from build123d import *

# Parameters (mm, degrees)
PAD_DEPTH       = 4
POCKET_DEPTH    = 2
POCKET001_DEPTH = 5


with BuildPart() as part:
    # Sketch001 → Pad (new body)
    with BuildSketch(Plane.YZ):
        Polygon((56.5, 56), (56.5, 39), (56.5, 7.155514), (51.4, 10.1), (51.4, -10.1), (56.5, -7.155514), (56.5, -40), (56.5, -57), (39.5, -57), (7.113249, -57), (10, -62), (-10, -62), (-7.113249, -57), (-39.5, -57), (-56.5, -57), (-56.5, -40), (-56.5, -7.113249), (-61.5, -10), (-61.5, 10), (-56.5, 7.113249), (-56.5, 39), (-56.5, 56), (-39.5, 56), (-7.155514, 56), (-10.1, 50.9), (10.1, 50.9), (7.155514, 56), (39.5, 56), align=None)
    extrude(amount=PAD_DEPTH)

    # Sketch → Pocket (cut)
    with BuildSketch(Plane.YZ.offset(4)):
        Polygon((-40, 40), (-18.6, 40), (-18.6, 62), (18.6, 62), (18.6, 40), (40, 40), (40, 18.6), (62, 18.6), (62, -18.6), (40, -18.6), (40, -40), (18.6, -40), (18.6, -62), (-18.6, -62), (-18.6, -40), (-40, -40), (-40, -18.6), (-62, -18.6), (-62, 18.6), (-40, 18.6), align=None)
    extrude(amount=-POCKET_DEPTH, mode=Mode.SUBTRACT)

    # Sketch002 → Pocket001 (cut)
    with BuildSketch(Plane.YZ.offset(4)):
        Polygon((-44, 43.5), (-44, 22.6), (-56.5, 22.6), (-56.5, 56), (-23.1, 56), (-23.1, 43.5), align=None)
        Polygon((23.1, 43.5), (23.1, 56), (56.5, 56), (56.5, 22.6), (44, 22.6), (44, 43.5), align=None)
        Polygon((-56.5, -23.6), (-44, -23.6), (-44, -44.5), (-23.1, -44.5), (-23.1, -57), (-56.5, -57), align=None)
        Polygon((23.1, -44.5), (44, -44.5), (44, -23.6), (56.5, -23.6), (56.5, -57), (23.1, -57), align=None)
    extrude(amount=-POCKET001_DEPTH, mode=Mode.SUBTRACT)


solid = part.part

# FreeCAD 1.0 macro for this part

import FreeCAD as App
import Part
import Sketcher
from FreeCAD import Vector
Q = App.Units.Quantity


def add_polygon(sketch, points):
    """Adds a closed chain of lines whose ends are joined by coincident constraints."""
    first, n = sketch.GeometryCount, len(points)
    for a, b in zip(points, points[1:] + points[:1]):
        sketch.addGeometry(Part.LineSegment(App.Vector(*a, 0), App.Vector(*b, 0)), False)
    for i in range(n):
        sketch.addConstraint(Sketcher.Constraint("Coincident", first + i, 2, first + (i + 1) % n, 1))

doc = App.newDocument("Part")
params = doc.addObject("Spreadsheet::Sheet", "Params")
for row, (alias, value) in enumerate([
    ("sketch1_width", "20 mm"),
    ("sketch1_width2", "20.2 mm"),
    ("pad1_length", "4 mm"),
    ("sketch2_width", "22 mm"),
    ("sketch2_width2", "21.4 mm"),
    ("sketch2_width3", "37.2 mm"),
    ("pocket1_length", "2 mm"),
    ("sketch3_width", "20.9 mm"),
    ("sketch3_width2", "33.4 mm"),
    ("pocket2_length", "5 mm"),
], start=1):
    params.set(f"A{row}", alias)
    params.set(f"B{row}", "=" + value)
    params.setAlias(f"B{row}", alias)

body = doc.addObject("PartDesign::Body", "Body")

sketch1 = body.newObject("Sketcher::SketchObject", "Sketch")
sketch1.AttachmentSupport = (doc.getObject("YZ_Plane"), [""])
sketch1.MapMode = "FlatFace"
add_polygon(sketch1, [(56, 7), (56, 56), (7, 56), (10, 51), (-10, 51), (-7, 56), (-56, 56), (-56, 7), (-62, 10), (-62, -10), (-56, -7), (-56, -57), (-7, -57), (-10, -62), (10, -62), (7, -57), (56, -57), (56, -7), (51, -10), (51, 10)])
sketch1.addConstraint(Sketcher.Constraint("Vertical", 0))
sketch1.addConstraint(Sketcher.Constraint("Horizontal", 1))
sketch1.addConstraint(Sketcher.Constraint("Horizontal", 3))
sketch1.addConstraint(Sketcher.Constraint("Horizontal", 5))
sketch1.addConstraint(Sketcher.Constraint("Vertical", 6))
sketch1.addConstraint(Sketcher.Constraint("Vertical", 8))
sketch1.addConstraint(Sketcher.Constraint("Vertical", 10))
sketch1.addConstraint(Sketcher.Constraint("Horizontal", 11))
sketch1.addConstraint(Sketcher.Constraint("Horizontal", 13))
sketch1.addConstraint(Sketcher.Constraint("Horizontal", 15))
sketch1.addConstraint(Sketcher.Constraint("Vertical", 16))
sketch1.addConstraint(Sketcher.Constraint("Vertical", 18))
sketch1.addConstraint(Sketcher.Constraint("Symmetric", 1, 2, 4, 2, -2))
sketch1.addConstraint(Sketcher.Constraint("Symmetric", 11, 2, 14, 2, -2))
sketch1.addConstraint(Sketcher.Constraint("Symmetric", 6, 2, 9, 2, -1))
sketch1.addConstraint(Sketcher.Constraint("Symmetric", 16, 2, 19, 2, -1))
sketch1.addConstraint(Sketcher.Constraint("Perpendicular", 4, 7))
sketch1.addConstraint(Sketcher.Constraint("Perpendicular", 2, 9))
sketch1.addConstraint(Sketcher.Constraint("Perpendicular", 7, 12))
sketch1.addConstraint(Sketcher.Constraint("Perpendicular", 9, 14))
sketch1.addConstraint(Sketcher.Constraint("Perpendicular", 14, 17))
sketch1.addConstraint(Sketcher.Constraint("Perpendicular", 12, 19))
sketch1.addConstraint(Sketcher.Constraint("Equal", 1, 5))
sketch1.addConstraint(Sketcher.Constraint("Equal", 13, 8))
sketch1.addConstraint(Sketcher.Constraint("Equal", 3, 18))
sketch1.addConstraint(Sketcher.Constraint("Equal", 2, 4))
sketch1.addConstraint(Sketcher.Constraint("Equal", 9, 12))
sketch1.addConstraint(Sketcher.Constraint("Equal", 4, 17))
sketch1.addConstraint(Sketcher.Constraint("DistanceX", 13, 1, 13, 2, 20.0))
sketch1.addConstraint(Sketcher.Constraint("Angle", 2, Q("-60.000003 deg")))
sketch1.addConstraint(Sketcher.Constraint("DistanceX", 3, 2, 3, 1, 20.2))
sketch1.addConstraint(Sketcher.Constraint("DistanceY", -1, 1, 0, 2, 56.0))
sketch1.addConstraint(Sketcher.Constraint("DistanceY", 10, 2, -1, 1, 57.0))
sketch1.addConstraint(Sketcher.Constraint("DistanceY", 12, 2, -1, 1, 62.0))
sketch1.addConstraint(Sketcher.Constraint("DistanceX", 5, 2, 0, 2, 113.0))
sketch1.addConstraint(Sketcher.Constraint("DistanceY", -1, 1, 2, 2, 50.9))
sketch1.setExpression("Constraints[48]", "Params.sketch1_width")
sketch1.setExpression("Constraints[50]", "Params.sketch1_width2")
pad1 = body.newObject("PartDesign::Pad", "Pad")
pad1.Profile = sketch1
pad1.setExpression("Length", "Params.pad1_length")

sketch2 = body.newObject("Sketcher::SketchObject", "Sketch001")
sketch2.AttachmentSupport = (doc.getObject("YZ_Plane"), [""])
sketch2.MapMode = "FlatFace"
sketch2.AttachmentOffset = App.Placement(Vector(0, 0, 4), App.Rotation())
add_polygon(sketch2, [(-19, 40), (-40, 40), (-40, 19), (-62, 19), (-62, -19), (-40, -19), (-40, -40), (-19, -40), (-19, -62), (19, -62), (19, -40), (40, -40), (40, -19), (62, -19), (62, 19), (40, 19), (40, 40), (19, 40), (19, 62), (-19, 62)])
sketch2.addConstraint(Sketcher.Constraint("Horizontal", 0))
sketch2.addConstraint(Sketcher.Constraint("Vertical", 1))
sketch2.addConstraint(Sketcher.Constraint("Horizontal", 2))
sketch2.addConstraint(Sketcher.Constraint("Vertical", 3))
sketch2.addConstraint(Sketcher.Constraint("Horizontal", 4))
sketch2.addConstraint(Sketcher.Constraint("Vertical", 5))
sketch2.addConstraint(Sketcher.Constraint("Horizontal", 6))
sketch2.addConstraint(Sketcher.Constraint("Vertical", 7))
sketch2.addConstraint(Sketcher.Constraint("Horizontal", 8))
sketch2.addConstraint(Sketcher.Constraint("Vertical", 9))
sketch2.addConstraint(Sketcher.Constraint("Horizontal", 10))
sketch2.addConstraint(Sketcher.Constraint("Vertical", 11))
sketch2.addConstraint(Sketcher.Constraint("Horizontal", 12))
sketch2.addConstraint(Sketcher.Constraint("Vertical", 13))
sketch2.addConstraint(Sketcher.Constraint("Horizontal", 14))
sketch2.addConstraint(Sketcher.Constraint("Vertical", 15))
sketch2.addConstraint(Sketcher.Constraint("Horizontal", 16))
sketch2.addConstraint(Sketcher.Constraint("Vertical", 17))
sketch2.addConstraint(Sketcher.Constraint("Horizontal", 18))
sketch2.addConstraint(Sketcher.Constraint("Vertical", 19))
sketch2.addConstraint(Sketcher.Constraint("Symmetric", 0, 2, 10, 2, -1, 1))
sketch2.addConstraint(Sketcher.Constraint("Symmetric", 2, 2, 12, 2, -1, 1))
sketch2.addConstraint(Sketcher.Constraint("Symmetric", 4, 2, 14, 2, -1, 1))
sketch2.addConstraint(Sketcher.Constraint("Symmetric", 6, 2, 16, 2, -1, 1))
sketch2.addConstraint(Sketcher.Constraint("Symmetric", 8, 2, 18, 2, -1, 1))
sketch2.addConstraint(Sketcher.Constraint("Symmetric", 6, 2, 9, 2, -2))
sketch2.addConstraint(Sketcher.Constraint("Symmetric", 4, 2, 11, 2, -2))
sketch2.addConstraint(Sketcher.Constraint("Equal", 16, 1))
sketch2.addConstraint(Sketcher.Constraint("Equal", 18, 3))
sketch2.addConstraint(Sketcher.Constraint("Equal", 14, 7))
sketch2.addConstraint(Sketcher.Constraint("DistanceX", 2, 2, 2, 1, 22.0))
sketch2.addConstraint(Sketcher.Constraint("DistanceX", 0, 2, 0, 1, 21.4))
sketch2.addConstraint(Sketcher.Constraint("DistanceX", 8, 1, 8, 2, 37.2))
sketch2.setExpression("Constraints[50]", "Params.sketch2_width")
sketch2.setExpression("Constraints[51]", "Params.sketch2_width2")
sketch2.setExpression("Constraints[52]", "Params.sketch2_width3")
pocket1 = body.newObject("PartDesign::Pocket", "Pocket")
pocket1.Profile = sketch2
pocket1.setExpression("Length", "Params.pocket1_length")

sketch3 = body.newObject("Sketcher::SketchObject", "Sketch002")
sketch3.AttachmentSupport = (doc.getObject("YZ_Plane"), [""])
sketch3.MapMode = "FlatFace"
sketch3.AttachmentOffset = App.Placement(Vector(0, 0, 4), App.Rotation())
add_polygon(sketch3, [(-44, 23), (-44, 44), (-23, 44), (-23, 56), (-56, 56), (-56, 23)])
add_polygon(sketch3, [(23, 56), (23, 44), (44, 44), (44, 23), (56, 23), (56, 56)])
add_polygon(sketch3, [(-44, -24), (-56, -24), (-56, -57), (-23, -57), (-23, -44), (-44, -44)])
add_polygon(sketch3, [(44, -44), (23, -44), (23, -57), (56, -57), (56, -24), (44, -24)])
sketch3.addConstraint(Sketcher.Constraint("Vertical", 0))
sketch3.addConstraint(Sketcher.Constraint("Horizontal", 1))
sketch3.addConstraint(Sketcher.Constraint("Vertical", 2))
sketch3.addConstraint(Sketcher.Constraint("Horizontal", 3))
sketch3.addConstraint(Sketcher.Constraint("Vertical", 4))
sketch3.addConstraint(Sketcher.Constraint("Horizontal", 5))
sketch3.addConstraint(Sketcher.Constraint("Vertical", 6))
sketch3.addConstraint(Sketcher.Constraint("Horizontal", 7))
sketch3.addConstraint(Sketcher.Constraint("Vertical", 8))
sketch3.addConstraint(Sketcher.Constraint("Horizontal", 9))
sketch3.addConstraint(Sketcher.Constraint("Vertical", 10))
sketch3.addConstraint(Sketcher.Constraint("Horizontal", 11))
sketch3.addConstraint(Sketcher.Constraint("Horizontal", 12))
sketch3.addConstraint(Sketcher.Constraint("Vertical", 13))
sketch3.addConstraint(Sketcher.Constraint("Horizontal", 14))
sketch3.addConstraint(Sketcher.Constraint("Vertical", 15))
sketch3.addConstraint(Sketcher.Constraint("Horizontal", 16))
sketch3.addConstraint(Sketcher.Constraint("Vertical", 17))
sketch3.addConstraint(Sketcher.Constraint("Horizontal", 18))
sketch3.addConstraint(Sketcher.Constraint("Vertical", 19))
sketch3.addConstraint(Sketcher.Constraint("Horizontal", 20))
sketch3.addConstraint(Sketcher.Constraint("Vertical", 21))
sketch3.addConstraint(Sketcher.Constraint("Horizontal", 22))
sketch3.addConstraint(Sketcher.Constraint("Vertical", 23))
sketch3.addConstraint(Sketcher.Constraint("Symmetric", 1, 2, 6, 2, -2))
sketch3.addConstraint(Sketcher.Constraint("Symmetric", 5, 2, 8, 2, -2))
sketch3.addConstraint(Sketcher.Constraint("Symmetric", 3, 2, 10, 2, -2))
sketch3.addConstraint(Sketcher.Constraint("Symmetric", 15, 2, 18, 2, -2))
sketch3.addConstraint(Sketcher.Constraint("Symmetric", 13, 2, 20, 2, -2))
sketch3.addConstraint(Sketcher.Constraint("Symmetric", 17, 2, 22, 2, -2))
sketch3.addConstraint(Sketcher.Constraint("Vertical", 4, 2, 12, 2))
sketch3.addConstraint(Sketcher.Constraint("Vertical", 2, 2, 14, 2))
sketch3.addConstraint(Sketcher.Constraint("Vertical", 5, 2, 16, 2))
sketch3.addConstraint(Sketcher.Constraint("Equal", 18, 0))
sketch3.addConstraint(Sketcher.Constraint("Equal", 22, 2))
sketch3.addConstraint(Sketcher.Constraint("Equal", 10, 13))
sketch3.addConstraint(Sketcher.Constraint("Equal", 6, 15))
sketch3.addConstraint(Sketcher.Constraint("DistanceX", 1, 1, 1, 2, 20.9))
sketch3.addConstraint(Sketcher.Constraint("DistanceX", 3, 2, 3, 1, 33.4))
sketch3.addConstraint(Sketcher.Constraint("DistanceX", 0, 2, -1, 1, 44.0))
sketch3.addConstraint(Sketcher.Constraint("DistanceY", -1, 1, 2, 2, 56.0))
sketch3.addConstraint(Sketcher.Constraint("DistanceY", 13, 2, -1, 1, 57.0))
sketch3.setExpression("Constraints[61]", "Params.sketch3_width")
sketch3.setExpression("Constraints[62]", "Params.sketch3_width2")
pocket2 = body.newObject("PartDesign::Pocket", "Pocket001")
pocket2.Profile = sketch3
pocket2.setExpression("Length", "Params.pocket2_length")

doc.recompute()
